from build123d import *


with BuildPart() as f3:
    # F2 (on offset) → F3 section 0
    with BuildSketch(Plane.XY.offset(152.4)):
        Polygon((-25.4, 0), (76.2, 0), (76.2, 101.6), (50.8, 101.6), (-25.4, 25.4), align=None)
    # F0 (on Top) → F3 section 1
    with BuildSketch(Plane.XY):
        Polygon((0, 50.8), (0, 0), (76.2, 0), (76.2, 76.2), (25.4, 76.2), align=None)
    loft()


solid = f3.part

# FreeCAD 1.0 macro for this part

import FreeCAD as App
import Part
import Sketcher

V = App.Vector
Q = App.Units.Quantity


def add_polygon(sketch, points):
    """Adds a closed chain of lines whose ends are joined by coincident constraints."""
    first, n = sketch.GeometryCount, len(points)
    for a, b in zip(points, points[1:] + points[:1]):
        sketch.addGeometry(Part.LineSegment(App.Vector(*a, 0), App.Vector(*b, 0)), False)
    for i in range(n):
        sketch.addConstraint(Sketcher.Constraint("Coincident", first + i, 2, first + (i + 1) % n, 1))

doc = App.newDocument("Part")
params = doc.addObject("Spreadsheet::Sheet", "Params")
for row, (alias, value) in enumerate([
    ("sketch1_width", "4 in"),
    ("sketch1_width2", "1 in"),
    ("sketch2_width", "3 in"),
    ("sketch2_width2", "2 in"),
], start=1):
    params.set(f"A{row}", alias)
    params.set(f"B{row}", "=" + value)
    params.setAlias(f"B{row}", alias)

body = doc.addObject("PartDesign::Body", "Body")

sketch1 = body.newObject("Sketcher::SketchObject", "Sketch")
sketch1.AttachmentSupport = (doc.getObject("XY_Plane"), [""])
sketch1.MapMode = "FlatFace"
sketch1.AttachmentOffset = App.Placement(V(0, 0, 6 * 25.4), App.Rotation())
add_polygon(sketch1, [(-25, 0), (76, 0), (76, 102), (51, 102), (-25, 25)])
sketch1.addConstraint([
    Sketcher.Constraint("Horizontal", 0),
    Sketcher.Constraint("Vertical", 1),
    Sketcher.Constraint("Horizontal", 2),
    Sketcher.Constraint("Vertical", 4),
    Sketcher.Constraint("PointOnObject", 0, 2, -1),
    Sketcher.Constraint("Equal", 0, 1),
    Sketcher.Constraint("Equal", 2, 4),
    Sketcher.Constraint("DistanceX", 0, 1, 0, 2, Q("4 in")),
    Sketcher.Constraint("DistanceX", 2, 2, 2, 1, Q("1 in")),
    Sketcher.Constraint("DistanceX", -1, 1, 0, 2, Q("3 in")),
])
sketch1.setExpression("Constraints[12]", "Params.sketch1_width")
sketch1.setExpression("Constraints[13]", "Params.sketch1_width2")

sketch2 = body.newObject("Sketcher::SketchObject", "Sketch001")
sketch2.AttachmentSupport = (doc.getObject("XY_Plane"), [""])
sketch2.MapMode = "FlatFace"
add_polygon(sketch2, [(0, 51), (0, 0), (76, 0), (76, 76), (25, 76)])
sketch2.addConstraint([
    Sketcher.Constraint("Vertical", 0),
    Sketcher.Constraint("Horizontal", 1),
    Sketcher.Constraint("Vertical", 2),
    Sketcher.Constraint("Horizontal", 3),
    Sketcher.Constraint("Coincident", 0, 2, -1, 1),
    Sketcher.Constraint("Equal", 3, 0),
    Sketcher.Constraint("Equal", 1, 2),
    Sketcher.Constraint("DistanceX", 1, 1, 1, 2, Q("3 in")),
    Sketcher.Constraint("DistanceX", 3, 2, 3, 1, Q("2 in")),
])
sketch2.setExpression("Constraints[12]", "Params.sketch2_width")
sketch2.setExpression("Constraints[13]", "Params.sketch2_width2")

additiveloft = body.newObject("PartDesign::AdditiveLoft", "AdditiveLoft")
additiveloft.Profile = sketch1
additiveloft.Sections = [sketch2]

doc.recompute()
